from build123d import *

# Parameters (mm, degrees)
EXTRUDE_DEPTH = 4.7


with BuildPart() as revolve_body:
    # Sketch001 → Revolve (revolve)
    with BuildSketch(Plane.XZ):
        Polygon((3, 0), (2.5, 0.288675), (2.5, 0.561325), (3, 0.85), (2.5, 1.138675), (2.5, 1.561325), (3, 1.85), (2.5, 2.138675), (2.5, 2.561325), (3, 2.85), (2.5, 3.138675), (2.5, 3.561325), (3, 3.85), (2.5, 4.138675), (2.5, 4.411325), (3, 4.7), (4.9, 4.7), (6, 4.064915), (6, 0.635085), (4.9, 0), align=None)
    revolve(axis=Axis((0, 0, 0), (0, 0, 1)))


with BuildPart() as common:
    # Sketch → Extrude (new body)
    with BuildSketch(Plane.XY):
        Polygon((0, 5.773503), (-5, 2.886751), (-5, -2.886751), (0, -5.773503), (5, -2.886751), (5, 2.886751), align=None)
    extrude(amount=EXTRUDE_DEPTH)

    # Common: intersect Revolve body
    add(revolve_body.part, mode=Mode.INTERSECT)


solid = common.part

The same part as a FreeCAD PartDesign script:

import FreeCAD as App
import Part
import Sketcher

V = App.Vector
Q = App.Units.Quantity


def add_polygon(sketch, points):
    """Adds a closed chain of lines whose ends are joined by coincident constraints."""
    first, n = sketch.GeometryCount, len(points)
    for a, b in zip(points, points[1:] + points[:1]):
        sketch.addGeometry(Part.LineSegment(App.Vector(*a, 0), App.Vector(*b, 0)), False)
    for i in range(n):
        sketch.addConstraint(Sketcher.Constraint("Coincident", first + i, 2, first + (i + 1) % n, 1))

doc = App.newDocument("Part")
body = doc.addObject("PartDesign::Body", "Body")

# Sketch on XZ plane
sketch1 = doc.addObject("Sketcher::SketchObject", "Sketch")
body.addObject(sketch1)
sketch1.AttachmentSupport = (doc.XZ_Plane, [""])
sketch1.MapMode = "FlatFace"
add_polygon(sketch1, [(2.5, 0.29), (3, 0), (4.9, 0), (6, 0.64), (6, 4.06), (4.9, 4.7), (3, 4.7), (2.5, 4.41), (2.5, 4.14), (3, 3.85), (2.5, 3.56), (2.5, 3.14), (3, 2.85), (2.5, 2.56), (2.5, 2.14), (3, 1.85), (2.5, 1.56), (2.5, 1.14), (3, 0.85), (2.5, 0.56)])  # lines 0-19
sketch1.addConstraint(Sketcher.Constraint("Horizontal", 1))
sketch1.addConstraint(Sketcher.Constraint("Vertical", 3))
sketch1.addConstraint(Sketcher.Constraint("Horizontal", 5))
sketch1.addConstraint(Sketcher.Constraint("Vertical", 7))
sketch1.addConstraint(Sketcher.Constraint("Vertical", 10))
sketch1.addConstraint(Sketcher.Constraint("Vertical", 13))
sketch1.addConstraint(Sketcher.Constraint("Vertical", 16))
sketch1.addConstraint(Sketcher.Constraint("Vertical", 19))
sketch1.addConstraint(Sketcher.Constraint("PointOnObject", 0, 2, -1))
sketch1.addConstraint(Sketcher.Constraint("Parallel", 0, 4))
sketch1.addConstraint(Sketcher.Constraint("Parallel", 2, 6))
sketch1.addConstraint(Sketcher.Constraint("Parallel", 4, 8))
sketch1.addConstraint(Sketcher.Constraint("Parallel", 6, 9))
sketch1.addConstraint(Sketcher.Constraint("Parallel", 8, 11))
sketch1.addConstraint(Sketcher.Constraint("Parallel", 9, 12))
sketch1.addConstraint(Sketcher.Constraint("Parallel", 11, 14))
sketch1.addConstraint(Sketcher.Constraint("Parallel", 12, 15))
sketch1.addConstraint(Sketcher.Constraint("Parallel", 14, 17))
sketch1.addConstraint(Sketcher.Constraint("Parallel", 15, 18))
sketch1.addConstraint(Sketcher.Constraint("Vertical", 1, 2, 4, 2))
sketch1.addConstraint(Sketcher.Constraint("Vertical", 0, 2, 5, 2))
sketch1.addConstraint(Sketcher.Constraint("Vertical", 5, 2, 8, 2))
sketch1.addConstraint(Sketcher.Constraint("Vertical", 7, 2, 9, 2))
sketch1.addConstraint(Sketcher.Constraint("Vertical", 8, 2, 11, 2))
sketch1.addConstraint(Sketcher.Constraint("Vertical", 10, 2, 12, 2))
sketch1.addConstraint(Sketcher.Constraint("Vertical", 11, 2, 14, 2))
sketch1.addConstraint(Sketcher.Constraint("Vertical", 13, 2, 15, 2))
sketch1.addConstraint(Sketcher.Constraint("Vertical", 14, 2, 17, 2))
sketch1.addConstraint(Sketcher.Constraint("Vertical", 16, 2, 18, 2))
sketch1.addConstraint(Sketcher.Constraint("Equal", 10, 13))
sketch1.addConstraint(Sketcher.Constraint("Equal", 13, 16))
sketch1.addConstraint(Sketcher.Constraint("Equal", 7, 19))
sketch1.addConstraint(Sketcher.Constraint("Equal", 2, 4))
sketch1.addConstraint(Sketcher.Constraint("Angle", 0, Q("-29.999988 deg")))
sketch1.addConstraint(Sketcher.Constraint("DistanceX", 1, 1, 1, 2, 1.9))
sketch1.addConstraint(Sketcher.Constraint("DistanceX", -1, 1, 0, 2, 3.0))
sketch1.addConstraint(Sketcher.Constraint("DistanceX", -1, 1, 2, 2, 6.0))
sketch1.addConstraint(Sketcher.Constraint("DistanceY", 10, 2, 7, 2, 1.0))
sketch1.addConstraint(Sketcher.Constraint("DistanceY", -1, 1, 4, 2, 4.7))
sketch1.addConstraint(Sketcher.Constraint("DistanceX", -1, 1, 6, 2, 2.5))
revolution = doc.addObject("PartDesign::Revolution", "Revolution")
body.addObject(revolution)
revolution.Profile = sketch1
revolution.ReferenceAxis = (sketch1, ["V_Axis"])
revolution.Angle = 360
body2 = doc.addObject("PartDesign::Body", "Body001")

# Sketch on XY plane
sketch2 = doc.addObject("Sketcher::SketchObject", "Sketch001")
body2.addObject(sketch2)
sketch2.AttachmentSupport = (doc.getObject("XY_Plane001"), [""])
sketch2.MapMode = "FlatFace"
add_polygon(sketch2, [(0, 6), (-5, 3), (-5, -3), (0, -6), (5, -3), (5, 3)])  # lines 0-5
sketch2.addConstraint(Sketcher.Constraint("Vertical", 1))
sketch2.addConstraint(Sketcher.Constraint("Vertical", 4))
sketch2.addConstraint(Sketcher.Constraint("Symmetric", 0, 2, 3, 2, -1, 1))
sketch2.addConstraint(Sketcher.Constraint("Symmetric", 2, 2, 5, 2, -1, 1))
sketch2.addConstraint(Sketcher.Constraint("PointOnObject", 2, 2, -2))
sketch2.addConstraint(Sketcher.Constraint("Parallel", 2, 5))
sketch2.addConstraint(Sketcher.Constraint("Horizontal", 1, 2, 3, 2))
sketch2.addConstraint(Sketcher.Constraint("Angle", 0, Q("-149.999994 deg")))
sketch2.addConstraint(Sketcher.Constraint("DistanceX", 0, 2, -1, 1, 5.0))
sketch2.addConstraint(Sketcher.Constraint("DistanceY", 1, 2, 1, 1, 5.773502))
pad1 = doc.addObject("PartDesign::Pad", "Pad")
body2.addObject(pad1)
pad1.Profile = sketch2
pad1.Length = 4.7
doc.recompute()

boolean = doc.addObject("PartDesign::Boolean", "Boolean")
body2.addObject(boolean)
boolean.Type = "Common"
boolean.addObjects([body])

doc.recompute()
